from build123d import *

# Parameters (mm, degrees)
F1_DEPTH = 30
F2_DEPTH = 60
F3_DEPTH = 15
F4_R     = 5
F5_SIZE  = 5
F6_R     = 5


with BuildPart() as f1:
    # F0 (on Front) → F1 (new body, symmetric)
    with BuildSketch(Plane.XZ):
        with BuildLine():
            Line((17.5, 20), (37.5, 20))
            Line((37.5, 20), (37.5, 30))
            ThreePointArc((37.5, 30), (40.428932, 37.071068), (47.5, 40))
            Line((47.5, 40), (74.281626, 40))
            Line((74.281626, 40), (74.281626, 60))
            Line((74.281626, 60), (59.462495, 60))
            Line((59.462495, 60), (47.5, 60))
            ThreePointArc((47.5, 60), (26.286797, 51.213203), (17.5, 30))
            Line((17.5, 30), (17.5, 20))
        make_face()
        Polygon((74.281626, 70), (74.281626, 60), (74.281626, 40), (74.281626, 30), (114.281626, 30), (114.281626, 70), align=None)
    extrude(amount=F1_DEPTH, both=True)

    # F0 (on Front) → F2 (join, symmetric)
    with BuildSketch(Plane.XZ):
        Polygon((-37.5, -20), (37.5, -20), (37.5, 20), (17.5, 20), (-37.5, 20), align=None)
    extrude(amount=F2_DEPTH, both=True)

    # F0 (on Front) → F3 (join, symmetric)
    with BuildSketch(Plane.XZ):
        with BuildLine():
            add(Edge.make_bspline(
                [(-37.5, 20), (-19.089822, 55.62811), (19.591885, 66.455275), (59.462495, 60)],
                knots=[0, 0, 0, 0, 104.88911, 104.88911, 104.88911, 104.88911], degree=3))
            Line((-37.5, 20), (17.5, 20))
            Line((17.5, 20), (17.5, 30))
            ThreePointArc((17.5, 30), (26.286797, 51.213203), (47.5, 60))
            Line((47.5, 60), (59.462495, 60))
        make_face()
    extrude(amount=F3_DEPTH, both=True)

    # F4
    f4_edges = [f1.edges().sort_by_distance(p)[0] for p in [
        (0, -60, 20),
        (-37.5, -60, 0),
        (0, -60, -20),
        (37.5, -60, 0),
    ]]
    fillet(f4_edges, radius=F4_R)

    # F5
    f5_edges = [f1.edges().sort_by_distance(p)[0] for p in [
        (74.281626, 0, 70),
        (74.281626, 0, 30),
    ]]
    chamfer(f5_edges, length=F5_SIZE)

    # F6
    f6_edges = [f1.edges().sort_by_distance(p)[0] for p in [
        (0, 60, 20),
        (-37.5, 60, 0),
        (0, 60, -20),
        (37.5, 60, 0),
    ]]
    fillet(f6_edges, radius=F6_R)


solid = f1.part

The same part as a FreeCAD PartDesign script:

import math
import FreeCAD as App
import Part
import Sketcher
from FreeCAD import Vector
Q = App.Units.Quantity


def edges_at(feature, points):
    """Names of the edges that pass closest to the given points."""
    edges = feature.Shape.Edges
    near = lambda p: min(range(len(edges)), key=lambda i: edges[i].distToShape(Part.Vertex(*p))[0])
    return sorted({f"Edge{near(p) + 1}" for p in points})

doc = App.newDocument("Part")
params = doc.addObject("Spreadsheet::Sheet", "Params")
for row, (alias, value) in enumerate([
    ("sketch1_radius", "9.999999 mm"),
    ("sketch1_radius2", "30.000001 mm"),
    ("pad1_length", "60 mm"),
    ("sketch2_width", "75 mm"),
    ("sketch2_height", "40 mm"),
    ("pad2_length", "120 mm"),
    ("sketch3_radius", "30.000001 mm"),
    ("sketch3_width", "55 mm"),
    ("pad3_length", "30 mm"),
    ("fillet_radius", "5 mm"),
    ("chamfer_size", "5 mm"),
    ("fillet2_radius", "5 mm"),
], start=1):
    params.set(f"A{row}", alias)
    params.set(f"B{row}", "=" + value)
    params.setAlias(f"B{row}", alias)

body = doc.addObject("PartDesign::Body", "Body")

# Sketch on XZ plane
sketch1 = body.newObject("Sketcher::SketchObject", "Sketch")
sketch1.AttachmentSupport = (doc.getObject("XZ_Plane"), [""])
sketch1.MapMode = "FlatFace"
sketch1.addGeometry(Part.LineSegment(Vector(18, 20, 0), Vector(38, 20, 0)), False)
sketch1.addGeometry(Part.LineSegment(Vector(38, 20, 0), Vector(38, 30, 0)), False)
sketch1.addGeometry(Part.ArcOfCircle(Part.Circle(Vector(47, 30, 0), Vector(0, 0, 1), 10), math.radians(90), math.radians(180)), False)
sketch1.addGeometry(Part.LineSegment(Vector(48, 40, 0), Vector(74, 40, 0)), False)
sketch1.addGeometry(Part.LineSegment(Vector(74, 40, 0), Vector(74, 30, 0)), False)
sketch1.addGeometry(Part.LineSegment(Vector(74, 30, 0), Vector(114, 30, 0)), False)
sketch1.addGeometry(Part.LineSegment(Vector(114, 30, 0), Vector(114, 70, 0)), False)
sketch1.addGeometry(Part.LineSegment(Vector(114, 70, 0), Vector(74, 70, 0)), False)
sketch1.addGeometry(Part.LineSegment(Vector(74, 70, 0), Vector(74, 60, 0)), False)
sketch1.addGeometry(Part.LineSegment(Vector(74, 60, 0), Vector(48, 60, 0)), False)
sketch1.addGeometry(Part.ArcOfCircle(Part.Circle(Vector(48, 30, 0), Vector(0, 0, 1), 30), math.radians(90), math.radians(180)), False)
sketch1.addGeometry(Part.LineSegment(Vector(18, 30, 0), Vector(18, 20, 0)), False)
sketch1.addConstraint(Sketcher.Constraint("Coincident", 0, 2, 1, 1))
sketch1.addConstraint(Sketcher.Constraint("Tangent", 1, 2, 2, 2))
sketch1.addConstraint(Sketcher.Constraint("Tangent", 2, 1, 3, 1))
sketch1.addConstraint(Sketcher.Constraint("Coincident", 3, 2, 4, 1))
sketch1.addConstraint(Sketcher.Constraint("Coincident", 4, 2, 5, 1))
sketch1.addConstraint(Sketcher.Constraint("Coincident", 5, 2, 6, 1))
sketch1.addConstraint(Sketcher.Constraint("Coincident", 6, 2, 7, 1))
sketch1.addConstraint(Sketcher.Constraint("Coincident", 7, 2, 8, 1))
sketch1.addConstraint(Sketcher.Constraint("Coincident", 8, 2, 9, 1))
sketch1.addConstraint(Sketcher.Constraint("Tangent", 9, 2, 10, 1))
sketch1.addConstraint(Sketcher.Constraint("Tangent", 10, 2, 11, 1))
sketch1.addConstraint(Sketcher.Constraint("Coincident", 11, 2, 0, 1))
sketch1.addConstraint(Sketcher.Constraint("Horizontal", 0))
sketch1.addConstraint(Sketcher.Constraint("Vertical", 1))
sketch1.addConstraint(Sketcher.Constraint("Horizontal", 3))
sketch1.addConstraint(Sketcher.Constraint("Vertical", 4))
sketch1.addConstraint(Sketcher.Constraint("Horizontal", 5))
sketch1.addConstraint(Sketcher.Constraint("Vertical", 6))
sketch1.addConstraint(Sketcher.Constraint("Horizontal", 7))
sketch1.addConstraint(Sketcher.Constraint("Vertical", 8))
sketch1.addConstraint(Sketcher.Constraint("Horizontal", 9))
sketch1.addConstraint(Sketcher.Constraint("Vertical", 11))
sketch1.addConstraint(Sketcher.Constraint("Coincident", 10, 3, 2, 3))
sketch1.addConstraint(Sketcher.Constraint("Horizontal", 1, 2, 4, 2))
sketch1.addConstraint(Sketcher.Constraint("Vertical", 4, 2, 7, 2))
sketch1.addConstraint(Sketcher.Constraint("Equal", 1, 4))
sketch1.addConstraint(Sketcher.Constraint("Equal", 7, 6))
sketch1.addConstraint(Sketcher.Constraint("Equal", 4, 8))
sketch1.addConstraint(Sketcher.Constraint("Radius", 2, Q("9.999999 mm")))
sketch1.addConstraint(Sketcher.Constraint("Radius", 10, Q("30.000001 mm")))
sketch1.addConstraint(Sketcher.Constraint("DistanceY", -1, 1, 2, 3, Q("30.000001 mm")))
sketch1.addConstraint(Sketcher.Constraint("DistanceX", -1, 1, 2, 3, Q("47.499999 mm")))
sketch1.addConstraint(Sketcher.Constraint("DistanceX", 3, 1, 3, 2, Q("26.781626 mm")))
sketch1.setExpression("Constraints[28]", "Params.sketch1_radius")
sketch1.setExpression("Constraints[29]", "Params.sketch1_radius2")
pad1 = body.newObject("PartDesign::Pad", "Pad")
pad1.Profile = sketch1
pad1.setExpression("Length", "Params.pad1_length")
pad1.Midplane = True

# Sketch on XZ plane
sketch2 = body.newObject("Sketcher::SketchObject", "Sketch001")
sketch2.AttachmentSupport = (doc.getObject("XZ_Plane"), [""])
sketch2.MapMode = "FlatFace"
sketch2.addGeometry(Part.LineSegment(Vector(-38, -20, 0), Vector(38, -20, 0)), False)
sketch2.addGeometry(Part.LineSegment(Vector(38, -20, 0), Vector(38, 20, 0)), False)
sketch2.addGeometry(Part.LineSegment(Vector(38, 20, 0), Vector(-38, 20, 0)), False)
sketch2.addGeometry(Part.LineSegment(Vector(-38, 20, 0), Vector(-38, -20, 0)), False)
sketch2.addConstraint(Sketcher.Constraint("Coincident", 0, 2, 1, 1))
sketch2.addConstraint(Sketcher.Constraint("Coincident", 1, 2, 2, 1))
sketch2.addConstraint(Sketcher.Constraint("Coincident", 2, 2, 3, 1))
sketch2.addConstraint(Sketcher.Constraint("Coincident", 3, 2, 0, 1))
sketch2.addConstraint(Sketcher.Constraint("Horizontal", 0))
sketch2.addConstraint(Sketcher.Constraint("Vertical", 1))
sketch2.addConstraint(Sketcher.Constraint("Horizontal", 2))
sketch2.addConstraint(Sketcher.Constraint("Vertical", 3))
sketch2.addConstraint(Sketcher.Constraint("Symmetric", 0, 2, 2, 2, -1, 1))
sketch2.addConstraint(Sketcher.Constraint("DistanceX", 0, 1, 0, 2, Q("75 mm")))
sketch2.addConstraint(Sketcher.Constraint("DistanceY", 1, 1, 1, 2, Q("40 mm")))
sketch2.setExpression("Constraints[9]", "Params.sketch2_width")
sketch2.setExpression("Constraints[10]", "Params.sketch2_height")
pad2 = body.newObject("PartDesign::Pad", "Pad001")
pad2.Profile = sketch2
pad2.setExpression("Length", "Params.pad2_length")
pad2.Midplane = True

# Sketch on XZ plane
sketch3 = body.newObject("Sketcher::SketchObject", "Sketch002")
sketch3.AttachmentSupport = (doc.getObject("XZ_Plane"), [""])
sketch3.MapMode = "FlatFace"
sketch3.addGeometry(Part.BSplineCurve([Vector(-37.5, 20, 0), Vector(-19.089822, 55.62811, 0), Vector(19.591885, 66.455275, 0), Vector(59.462495, 60, 0)], [4, 4], [0, 104.88911], False, 3, [1, 1, 1, 1], False), False)
sketch3.addGeometry(Part.LineSegment(Vector(-37.5, 20, 0), Vector(17.5, 20, 0)), False)
sketch3.addGeometry(Part.LineSegment(Vector(17.5, 20, 0), Vector(17.5, 30, 0)), False)
sketch3.addGeometry(Part.ArcOfCircle(Part.Circle(Vector(47.500001, 29.999999, 0), Vector(0, 0, 1), 30.000001), math.radians(90.000003), math.radians(179.999997)), False)
sketch3.addGeometry(Part.LineSegment(Vector(47.5, 60, 0), Vector(59.462495, 60, 0)), False)
sketch3.addConstraint(Sketcher.Constraint("Block", 0))
sketch3.addConstraint(Sketcher.Constraint("Coincident", 0, 1, 1, 1))
sketch3.addConstraint(Sketcher.Constraint("Coincident", 1, 2, 2, 1))
sketch3.addConstraint(Sketcher.Constraint("Tangent", 2, 2, 3, 2))
sketch3.addConstraint(Sketcher.Constraint("Tangent", 3, 1, 4, 1))
sketch3.addConstraint(Sketcher.Constraint("Coincident", 4, 2, 0, 2))
sketch3.addConstraint(Sketcher.Constraint("Horizontal", 1))
sketch3.addConstraint(Sketcher.Constraint("Vertical", 2))
sketch3.addConstraint(Sketcher.Constraint("Horizontal", 4))
sketch3.addConstraint(Sketcher.Constraint("Radius", 3, Q("30.000001 mm")))
sketch3.addConstraint(Sketcher.Constraint("DistanceX", 1, 1, 1, 2, Q("55 mm")))
sketch3.setExpression("Constraints[9]", "Params.sketch3_radius")
sketch3.setExpression("Constraints[10]", "Params.sketch3_width")
pad3 = body.newObject("PartDesign::Pad", "Pad002")
pad3.Profile = sketch3
pad3.setExpression("Length", "Params.pad3_length")
pad3.Midplane = True
doc.recompute()

fillet = body.newObject("PartDesign::Fillet", "Fillet")
fillet.Base = (pad3, edges_at(pad3, [
    (0, -60, 20),
    (-37.5, -60, 0),
    (0, -60, -20),
    (37.5, -60, 0),
]))
fillet.setExpression("Radius", "Params.fillet_radius")
doc.recompute()

chamfer = body.newObject("PartDesign::Chamfer", "Chamfer")
chamfer.Base = (fillet, edges_at(fillet, [(74.282, 0, 70), (74.282, 0, 30)]))
chamfer.setExpression("Size", "Params.chamfer_size")
doc.recompute()

fillet2 = body.newObject("PartDesign::Fillet", "Fillet001")
fillet2.Base = (chamfer, edges_at(chamfer, [
    (0, 60, 20),
    (-37.5, 60, 0),
    (0, 60, -20),
    (37.5, 60, 0),
]))
fillet2.setExpression("Radius", "Params.fillet2_radius")

doc.recompute()
